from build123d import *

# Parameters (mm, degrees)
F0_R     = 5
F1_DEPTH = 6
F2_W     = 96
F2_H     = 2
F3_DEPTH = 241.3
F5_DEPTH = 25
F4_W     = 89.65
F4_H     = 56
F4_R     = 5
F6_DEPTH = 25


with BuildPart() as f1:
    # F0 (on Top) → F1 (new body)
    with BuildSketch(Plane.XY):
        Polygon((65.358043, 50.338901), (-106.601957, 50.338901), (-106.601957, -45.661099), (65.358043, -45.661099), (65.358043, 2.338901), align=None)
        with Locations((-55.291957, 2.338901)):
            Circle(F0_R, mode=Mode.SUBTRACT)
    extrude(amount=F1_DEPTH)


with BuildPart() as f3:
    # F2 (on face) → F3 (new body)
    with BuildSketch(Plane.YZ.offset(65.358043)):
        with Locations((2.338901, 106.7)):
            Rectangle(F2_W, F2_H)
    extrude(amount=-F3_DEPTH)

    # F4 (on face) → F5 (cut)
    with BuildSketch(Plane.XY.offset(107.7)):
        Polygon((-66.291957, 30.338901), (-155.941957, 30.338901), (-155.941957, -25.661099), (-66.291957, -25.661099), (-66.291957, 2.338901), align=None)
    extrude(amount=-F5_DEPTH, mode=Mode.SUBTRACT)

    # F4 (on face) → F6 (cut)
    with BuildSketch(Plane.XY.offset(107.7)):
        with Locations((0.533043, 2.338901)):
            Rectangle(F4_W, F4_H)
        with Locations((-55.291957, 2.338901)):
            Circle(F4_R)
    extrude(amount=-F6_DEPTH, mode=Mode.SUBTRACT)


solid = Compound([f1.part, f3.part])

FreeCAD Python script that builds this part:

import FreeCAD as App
import Part
import Sketcher

V = App.Vector
Q = App.Units.Quantity

doc = App.newDocument("Part")
params = doc.addObject("Spreadsheet::Sheet", "Params")
for row, (alias, value) in enumerate([
    ("sketch1_diameter", "10 mm"),
    ("sketch1_height", "96 mm"),
    ("sketch1_width", "171.96 mm"),
    ("pad1_length", "6 mm"),
    ("sketch2_width", "96 mm"),
    ("sketch2_height", "2 mm"),
    ("pad2_length", "241.3 mm"),
    ("sketch3_height", "56 mm"),
    ("sketch3_width", "89.65 mm"),
    ("pocket1_length", "25 mm"),
    ("sketch4_diameter", "10 mm"),
    ("sketch4_height", "56 mm"),
    ("sketch4_width", "89.65 mm"),
    ("pocket2_length", "25 mm"),
], start=1):
    params.set(f"A{row}", alias)
    params.set(f"B{row}", "=" + value)
    params.setAlias(f"B{row}", alias)

body = doc.addObject("PartDesign::Body", "Body")

sketch1 = body.newObject("Sketcher::SketchObject", "Sketch")
sketch1.AttachmentSupport = (doc.getObject("XY_Plane"), [""])
sketch1.MapMode = "FlatFace"
sketch1.addGeometry(Part.LineSegment(V(65, 50, 0), V(-107, 50, 0)), False)
sketch1.addGeometry(Part.LineSegment(V(-107, 50, 0), V(-107, -46, 0)), False)
sketch1.addGeometry(Part.LineSegment(V(-107, -46, 0), V(65, -46, 0)), False)
sketch1.addGeometry(Part.LineSegment(V(65, -46, 0), V(65, 50, 0)), False)
sketch1.addGeometry(Part.Circle(V(-55, 2, 0), V(0, 0, 1), 5), False)
sketch1.addConstraint(Sketcher.Constraint("Coincident", 0, 2, 1, 1))
sketch1.addConstraint(Sketcher.Constraint("Coincident", 1, 2, 2, 1))
sketch1.addConstraint(Sketcher.Constraint("Coincident", 2, 2, 3, 1))
sketch1.addConstraint(Sketcher.Constraint("Coincident", 3, 2, 0, 1))
sketch1.addConstraint(Sketcher.Constraint("Horizontal", 0))
sketch1.addConstraint(Sketcher.Constraint("Vertical", 1))
sketch1.addConstraint(Sketcher.Constraint("Horizontal", 2))
sketch1.addConstraint(Sketcher.Constraint("Vertical", 3))
sketch1.addConstraint(Sketcher.Constraint("Diameter", 4, Q("10 mm")))
sketch1.addConstraint(Sketcher.Constraint("DistanceY", 1, 2, 1, 1, Q("96 mm")))
sketch1.addConstraint(Sketcher.Constraint("DistanceY", 4, 3, 0, 2, Q("48 mm")))
sketch1.addConstraint(Sketcher.Constraint("DistanceX", 0, 2, 0, 1, Q("171.96 mm")))
sketch1.addConstraint(Sketcher.Constraint("DistanceX", 0, 2, 4, 3, Q("51.31 mm")))
sketch1.addConstraint(Sketcher.Constraint("DistanceY", -1, 1, 4, 3, Q("2.338901 mm")))
sketch1.addConstraint(Sketcher.Constraint("DistanceX", 4, 3, -1, 1, Q("55.291957 mm")))
sketch1.setExpression("Constraints[8]", "Params.sketch1_diameter")
sketch1.setExpression("Constraints[9]", "Params.sketch1_height")
sketch1.setExpression("Constraints[11]", "Params.sketch1_width")
pad1 = body.newObject("PartDesign::Pad", "Pad")
pad1.Profile = sketch1
pad1.setExpression("Length", "Params.pad1_length")
body2 = doc.addObject("PartDesign::Body", "Body001")

sketch2 = body2.newObject("Sketcher::SketchObject", "Sketch001")
sketch2.AttachmentSupport = (doc.getObject("YZ_Plane001"), [""])
sketch2.MapMode = "FlatFace"
sketch2.AttachmentOffset = App.Placement(V(0, 0, 65.358043), App.Rotation())
sketch2.addGeometry(Part.LineSegment(V(-45.7, 107.7, 0), V(-45.7, 105.7, 0)), False)
sketch2.addGeometry(Part.LineSegment(V(-45.7, 105.7, 0), V(50.3, 105.7, 0)), False)
sketch2.addGeometry(Part.LineSegment(V(50.3, 105.7, 0), V(50.3, 107.7, 0)), False)
sketch2.addGeometry(Part.LineSegment(V(50.3, 107.7, 0), V(-45.7, 107.7, 0)), False)
sketch2.addConstraint(Sketcher.Constraint("Coincident", 0, 2, 1, 1))
sketch2.addConstraint(Sketcher.Constraint("Coincident", 1, 2, 2, 1))
sketch2.addConstraint(Sketcher.Constraint("Coincident", 2, 2, 3, 1))
sketch2.addConstraint(Sketcher.Constraint("Coincident", 3, 2, 0, 1))
sketch2.addConstraint(Sketcher.Constraint("Vertical", 0))
sketch2.addConstraint(Sketcher.Constraint("Horizontal", 1))
sketch2.addConstraint(Sketcher.Constraint("Vertical", 2))
sketch2.addConstraint(Sketcher.Constraint("Horizontal", 3))
sketch2.addConstraint(Sketcher.Constraint("DistanceX", 1, 1, 1, 2, Q("96 mm")))
sketch2.addConstraint(Sketcher.Constraint("DistanceY", 0, 2, 0, 1, Q("2 mm")))
sketch2.addConstraint(Sketcher.Constraint("DistanceY", -1, 1, 0, 2, Q("105.7 mm")))
sketch2.addConstraint(Sketcher.Constraint("DistanceX", 0, 2, -1, 1, Q("45.661099 mm")))
sketch2.setExpression("Constraints[8]", "Params.sketch2_width")
sketch2.setExpression("Constraints[9]", "Params.sketch2_height")
pad2 = body2.newObject("PartDesign::Pad", "Pad001")
pad2.Profile = sketch2
pad2.setExpression("Length", "Params.pad2_length")
pad2.Reversed = True

sketch3 = body2.newObject("Sketcher::SketchObject", "Sketch002")
sketch3.AttachmentSupport = (doc.getObject("XY_Plane001"), [""])
sketch3.MapMode = "FlatFace"
sketch3.AttachmentOffset = App.Placement(V(0, 0, 107.7), App.Rotation())
sketch3.addGeometry(Part.LineSegment(V(-66, 30, 0), V(-156, 30, 0)), False)
sketch3.addGeometry(Part.LineSegment(V(-156, 30, 0), V(-156, -26, 0)), False)
sketch3.addGeometry(Part.LineSegment(V(-156, -26, 0), V(-66, -26, 0)), False)
sketch3.addGeometry(Part.LineSegment(V(-66, -26, 0), V(-66, 30, 0)), False)
sketch3.addConstraint(Sketcher.Constraint("Coincident", 0, 2, 1, 1))
sketch3.addConstraint(Sketcher.Constraint("Coincident", 1, 2, 2, 1))
sketch3.addConstraint(Sketcher.Constraint("Coincident", 2, 2, 3, 1))
sketch3.addConstraint(Sketcher.Constraint("Coincident", 3, 2, 0, 1))
sketch3.addConstraint(Sketcher.Constraint("Horizontal", 0))
sketch3.addConstraint(Sketcher.Constraint("Vertical", 1))
sketch3.addConstraint(Sketcher.Constraint("Horizontal", 2))
sketch3.addConstraint(Sketcher.Constraint("Vertical", 3))
sketch3.addConstraint(Sketcher.Constraint("DistanceY", 1, 2, 1, 1, Q("56 mm")))
sketch3.addConstraint(Sketcher.Constraint("DistanceX", 0, 2, 0, 1, Q("89.65 mm")))
sketch3.addConstraint(Sketcher.Constraint("DistanceY", -1, 1, 0, 2, Q("30.338901 mm")))
sketch3.addConstraint(Sketcher.Constraint("DistanceX", 0, 2, -1, 1, Q("155.941957 mm")))
sketch3.setExpression("Constraints[8]", "Params.sketch3_height")
sketch3.setExpression("Constraints[9]", "Params.sketch3_width")
pocket1 = body2.newObject("PartDesign::Pocket", "Pocket")
pocket1.Profile = sketch3
pocket1.setExpression("Length", "Params.pocket1_length")

sketch4 = body2.newObject("Sketcher::SketchObject", "Sketch003")
sketch4.AttachmentSupport = (doc.getObject("XY_Plane001"), [""])
sketch4.MapMode = "FlatFace"
sketch4.AttachmentOffset = App.Placement(V(0, 0, 107.7), App.Rotation())
sketch4.addGeometry(Part.LineSegment(V(-44, 30, 0), V(-44, -26, 0)), False)
sketch4.addGeometry(Part.LineSegment(V(-44, -26, 0), V(45, -26, 0)), False)
sketch4.addGeometry(Part.LineSegment(V(45, -26, 0), V(45, 30, 0)), False)
sketch4.addGeometry(Part.LineSegment(V(45, 30, 0), V(-44, 30, 0)), False)
sketch4.addGeometry(Part.Circle(V(-55, 2, 0), V(0, 0, 1), 5), False)
sketch4.addConstraint(Sketcher.Constraint("Coincident", 0, 2, 1, 1))
sketch4.addConstraint(Sketcher.Constraint("Coincident", 1, 2, 2, 1))
sketch4.addConstraint(Sketcher.Constraint("Coincident", 2, 2, 3, 1))
sketch4.addConstraint(Sketcher.Constraint("Coincident", 3, 2, 0, 1))
sketch4.addConstraint(Sketcher.Constraint("Vertical", 0))
sketch4.addConstraint(Sketcher.Constraint("Horizontal", 1))
sketch4.addConstraint(Sketcher.Constraint("Vertical", 2))
sketch4.addConstraint(Sketcher.Constraint("Horizontal", 3))
sketch4.addConstraint(Sketcher.Constraint("Diameter", 4, Q("10 mm")))
sketch4.addConstraint(Sketcher.Constraint("DistanceY", 0, 2, 0, 1, Q("56 mm")))
sketch4.addConstraint(Sketcher.Constraint("DistanceX", 4, 3, 0, 2, Q("11 mm")))
sketch4.addConstraint(Sketcher.Constraint("DistanceY", 0, 2, 4, 3, Q("28 mm")))
sketch4.addConstraint(Sketcher.Constraint("DistanceX", 1, 1, 1, 2, Q("89.65 mm")))
sketch4.addConstraint(Sketcher.Constraint("DistanceY", -1, 1, 4, 3, Q("2.338901 mm")))
sketch4.addConstraint(Sketcher.Constraint("DistanceX", 4, 3, -1, 1, Q("55.291957 mm")))
sketch4.setExpression("Constraints[8]", "Params.sketch4_diameter")
sketch4.setExpression("Constraints[9]", "Params.sketch4_height")
sketch4.setExpression("Constraints[12]", "Params.sketch4_width")
pocket2 = body2.newObject("PartDesign::Pocket", "Pocket001")
pocket2.Profile = sketch4
pocket2.setExpression("Length", "Params.pocket2_length")

doc.recompute()
